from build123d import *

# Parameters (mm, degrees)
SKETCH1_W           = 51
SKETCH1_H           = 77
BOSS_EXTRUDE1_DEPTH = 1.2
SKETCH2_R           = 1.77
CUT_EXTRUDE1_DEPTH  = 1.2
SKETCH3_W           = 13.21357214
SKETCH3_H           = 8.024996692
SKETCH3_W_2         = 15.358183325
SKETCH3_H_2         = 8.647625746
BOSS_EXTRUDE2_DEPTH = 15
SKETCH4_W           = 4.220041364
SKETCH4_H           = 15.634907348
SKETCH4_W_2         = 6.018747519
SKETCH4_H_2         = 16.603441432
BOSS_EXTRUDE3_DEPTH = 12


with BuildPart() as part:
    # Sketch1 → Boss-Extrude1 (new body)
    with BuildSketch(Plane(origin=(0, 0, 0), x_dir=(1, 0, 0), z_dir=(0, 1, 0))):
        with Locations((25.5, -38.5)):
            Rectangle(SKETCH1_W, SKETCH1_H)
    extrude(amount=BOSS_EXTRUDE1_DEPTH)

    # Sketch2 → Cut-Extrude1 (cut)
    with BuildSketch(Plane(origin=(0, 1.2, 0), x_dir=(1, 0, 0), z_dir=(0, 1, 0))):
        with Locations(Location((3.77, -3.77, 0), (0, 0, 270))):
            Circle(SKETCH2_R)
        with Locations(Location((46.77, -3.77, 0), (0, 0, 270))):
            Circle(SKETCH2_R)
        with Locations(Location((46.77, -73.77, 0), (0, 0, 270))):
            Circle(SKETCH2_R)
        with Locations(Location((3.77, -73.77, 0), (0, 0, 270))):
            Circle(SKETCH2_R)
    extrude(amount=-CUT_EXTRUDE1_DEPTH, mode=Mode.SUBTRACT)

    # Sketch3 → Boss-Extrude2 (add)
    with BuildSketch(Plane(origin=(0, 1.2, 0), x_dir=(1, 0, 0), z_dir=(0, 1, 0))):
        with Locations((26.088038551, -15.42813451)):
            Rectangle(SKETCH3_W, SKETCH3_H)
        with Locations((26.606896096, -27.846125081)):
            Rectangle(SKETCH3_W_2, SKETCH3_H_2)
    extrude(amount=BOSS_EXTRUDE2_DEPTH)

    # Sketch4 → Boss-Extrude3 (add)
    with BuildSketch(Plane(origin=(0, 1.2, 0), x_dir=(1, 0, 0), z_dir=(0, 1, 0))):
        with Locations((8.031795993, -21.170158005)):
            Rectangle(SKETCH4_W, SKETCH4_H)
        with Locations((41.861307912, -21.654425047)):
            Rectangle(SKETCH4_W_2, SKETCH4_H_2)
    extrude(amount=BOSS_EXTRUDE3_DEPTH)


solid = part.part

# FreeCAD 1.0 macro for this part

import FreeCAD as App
import Part
import Sketcher

doc = App.newDocument("Part")
params = doc.addObject("Spreadsheet::Sheet", "Params")
for row, (alias, value) in enumerate([
    ("sketch1_width", "51 mm"),
    ("sketch1_height", "77 mm"),
    ("pad1_length", "1.2 mm"),
    ("sketch2_diameter", "3.54 mm"),
    ("pocket1_length", "1.2 mm"),
    ("pad2_length", "15 mm"),
    ("pad3_length", "12 mm"),
], start=1):
    params.set(f"A{row}", alias)
    params.set(f"B{row}", "=" + value)
    params.setAlias(f"B{row}", alias)

body = doc.addObject("PartDesign::Body", "Body")

# Sketch on XZ plane
sketch1 = body.newObject("Sketcher::SketchObject", "Sketch")
sketch1.AttachmentSupport = (doc.getObject("XZ_Plane"), [""])
sketch1.MapMode = "FlatFace"
sketch1.addGeometry(Part.LineSegment(App.Vector(0, 0, 0), App.Vector(0, 77, 0)), False)
sketch1.addGeometry(Part.LineSegment(App.Vector(0, 77, 0), App.Vector(51, 77, 0)), False)
sketch1.addGeometry(Part.LineSegment(App.Vector(51, 77, 0), App.Vector(51, 0, 0)), False)
sketch1.addGeometry(Part.LineSegment(App.Vector(51, 0, 0), App.Vector(0, 0, 0)), False)
sketch1.addConstraint(Sketcher.Constraint("Coincident", 0, 2, 1, 1))
sketch1.addConstraint(Sketcher.Constraint("Coincident", 1, 2, 2, 1))
sketch1.addConstraint(Sketcher.Constraint("Coincident", 2, 2, 3, 1))
sketch1.addConstraint(Sketcher.Constraint("Coincident", 3, 2, 0, 1))
sketch1.addConstraint(Sketcher.Constraint("Vertical", 0))
sketch1.addConstraint(Sketcher.Constraint("Horizontal", 1))
sketch1.addConstraint(Sketcher.Constraint("Vertical", 2))
sketch1.addConstraint(Sketcher.Constraint("Horizontal", 3))
sketch1.addConstraint(Sketcher.Constraint("Coincident", 3, 2, -1, 1))
sketch1.addConstraint(Sketcher.Constraint("DistanceX", 1, 1, 1, 2, 51.0))
sketch1.addConstraint(Sketcher.Constraint("DistanceY", 0, 1, 0, 2, 77.0))
sketch1.setExpression("Constraints[9]", "Params.sketch1_width")
sketch1.setExpression("Constraints[10]", "Params.sketch1_height")
pad1 = body.newObject("PartDesign::Pad", "Pad")
pad1.Profile = sketch1
pad1.setExpression("Length", "Params.pad1_length")
pad1.Reversed = True

# Sketch on XZ plane
sketch2 = body.newObject("Sketcher::SketchObject", "Sketch001")
sketch2.AttachmentSupport = (doc.getObject("XZ_Plane"), [""])
sketch2.MapMode = "FlatFace"
sketch2.AttachmentOffset = App.Placement(App.Vector(0, 0, -1.2), App.Rotation())
sketch2.addGeometry(Part.Circle(App.Vector(3.8, 3.8, 0), App.Vector(0, 0, 1), 1.8), False)
sketch2.addGeometry(Part.Circle(App.Vector(46.8, 3.8, 0), App.Vector(0, 0, 1), 1.8), False)
sketch2.addGeometry(Part.Circle(App.Vector(46.8, 73.8, 0), App.Vector(0, 0, 1), 1.8), False)
sketch2.addGeometry(Part.Circle(App.Vector(3.8, 73.8, 0), App.Vector(0, 0, 1), 1.8), False)
sketch2.addConstraint(Sketcher.Constraint("Equal", 0, 1))
sketch2.addConstraint(Sketcher.Constraint("Equal", 1, 2))
sketch2.addConstraint(Sketcher.Constraint("Equal", 2, 3))
sketch2.addConstraint(Sketcher.Constraint("Horizontal", 0, 3, 1, 3))
sketch2.addConstraint(Sketcher.Constraint("Horizontal", 2, 3, 3, 3))
sketch2.addConstraint(Sketcher.Constraint("Vertical", 1, 3, 2, 3))
sketch2.addConstraint(Sketcher.Constraint("Vertical", 0, 3, 3, 3))
sketch2.addConstraint(Sketcher.Constraint("Diameter", 0, 3.54))
sketch2.addConstraint(Sketcher.Constraint("DistanceX", 0, 3, 1, 3, 43.0))
sketch2.addConstraint(Sketcher.Constraint("DistanceY", 1, 3, 2, 3, 70.0))
sketch2.addConstraint(Sketcher.Constraint("DistanceX", -1, 1, 0, 3, 3.77))
sketch2.addConstraint(Sketcher.Constraint("DistanceY", -1, 1, 0, 3, 3.77))
sketch2.setExpression("Constraints[7]", "Params.sketch2_diameter")
pocket1 = body.newObject("PartDesign::Pocket", "Pocket")
pocket1.Profile = sketch2
pocket1.setExpression("Length", "Params.pocket1_length")
pocket1.Reversed = True

# Sketch on XZ plane
sketch3 = body.newObject("Sketcher::SketchObject", "Sketch002")
sketch3.AttachmentSupport = (doc.getObject("XZ_Plane"), [""])
sketch3.MapMode = "FlatFace"
sketch3.AttachmentOffset = App.Placement(App.Vector(0, 0, -1.2), App.Rotation())
sketch3.addGeometry(Part.LineSegment(App.Vector(19, 11, 0), App.Vector(19, 19, 0)), False)
sketch3.addGeometry(Part.LineSegment(App.Vector(19, 19, 0), App.Vector(33, 19, 0)), False)
sketch3.addGeometry(Part.LineSegment(App.Vector(33, 19, 0), App.Vector(33, 11, 0)), False)
sketch3.addGeometry(Part.LineSegment(App.Vector(33, 11, 0), App.Vector(19, 11, 0)), False)
sketch3.addGeometry(Part.LineSegment(App.Vector(19, 24, 0), App.Vector(19, 32, 0)), False)
sketch3.addGeometry(Part.LineSegment(App.Vector(19, 32, 0), App.Vector(34, 32, 0)), False)
sketch3.addGeometry(Part.LineSegment(App.Vector(34, 32, 0), App.Vector(34, 24, 0)), False)
sketch3.addGeometry(Part.LineSegment(App.Vector(34, 24, 0), App.Vector(19, 24, 0)), False)
sketch3.addConstraint(Sketcher.Constraint("Coincident", 0, 2, 1, 1))
sketch3.addConstraint(Sketcher.Constraint("Coincident", 1, 2, 2, 1))
sketch3.addConstraint(Sketcher.Constraint("Coincident", 2, 2, 3, 1))
sketch3.addConstraint(Sketcher.Constraint("Coincident", 3, 2, 0, 1))
sketch3.addConstraint(Sketcher.Constraint("Coincident", 4, 2, 5, 1))
sketch3.addConstraint(Sketcher.Constraint("Coincident", 5, 2, 6, 1))
sketch3.addConstraint(Sketcher.Constraint("Coincident", 6, 2, 7, 1))
sketch3.addConstraint(Sketcher.Constraint("Coincident", 7, 2, 4, 1))
sketch3.addConstraint(Sketcher.Constraint("Vertical", 0))
sketch3.addConstraint(Sketcher.Constraint("Horizontal", 1))
sketch3.addConstraint(Sketcher.Constraint("Vertical", 2))
sketch3.addConstraint(Sketcher.Constraint("Horizontal", 3))
sketch3.addConstraint(Sketcher.Constraint("Vertical", 4))
sketch3.addConstraint(Sketcher.Constraint("Horizontal", 5))
sketch3.addConstraint(Sketcher.Constraint("Vertical", 6))
sketch3.addConstraint(Sketcher.Constraint("Horizontal", 7))
sketch3.addConstraint(Sketcher.Constraint("DistanceY", 3, 2, 4, 2, 20.754302))
sketch3.addConstraint(Sketcher.Constraint("DistanceX", 1, 1, 1, 2, 13.213572))
sketch3.addConstraint(Sketcher.Constraint("DistanceX", 5, 1, 5, 2, 15.358183))
sketch3.addConstraint(Sketcher.Constraint("DistanceY", 0, 1, 0, 2, 8.024997))
sketch3.addConstraint(Sketcher.Constraint("DistanceY", 4, 1, 4, 2, 8.647626))
sketch3.addConstraint(Sketcher.Constraint("DistanceX", 4, 2, 0, 2, 0.553448))
sketch3.addConstraint(Sketcher.Constraint("DistanceX", -1, 1, 0, 2, 19.481252))
sketch3.addConstraint(Sketcher.Constraint("DistanceY", -1, 1, 0, 2, 19.440633))
pad2 = body.newObject("PartDesign::Pad", "Pad001")
pad2.Profile = sketch3
pad2.setExpression("Length", "Params.pad2_length")
pad2.Reversed = True

# Sketch on XZ plane
sketch4 = body.newObject("Sketcher::SketchObject", "Sketch003")
sketch4.AttachmentSupport = (doc.getObject("XZ_Plane"), [""])
sketch4.MapMode = "FlatFace"
sketch4.AttachmentOffset = App.Placement(App.Vector(0, 0, -1.2), App.Rotation())
sketch4.addGeometry(Part.LineSegment(App.Vector(5.9, 13.4, 0), App.Vector(5.9, 29, 0)), False)
sketch4.addGeometry(Part.LineSegment(App.Vector(5.9, 29, 0), App.Vector(10.1, 29, 0)), False)
sketch4.addGeometry(Part.LineSegment(App.Vector(10.1, 29, 0), App.Vector(10.1, 13.4, 0)), False)
sketch4.addGeometry(Part.LineSegment(App.Vector(10.1, 13.4, 0), App.Vector(5.9, 13.4, 0)), False)
sketch4.addGeometry(Part.LineSegment(App.Vector(38.9, 13.4, 0), App.Vector(38.9, 30, 0)), False)
sketch4.addGeometry(Part.LineSegment(App.Vector(38.9, 30, 0), App.Vector(44.9, 30, 0)), False)
sketch4.addGeometry(Part.LineSegment(App.Vector(44.9, 30, 0), App.Vector(44.9, 13.4, 0)), False)
sketch4.addGeometry(Part.LineSegment(App.Vector(44.9, 13.4, 0), App.Vector(38.9, 13.4, 0)), False)
sketch4.addConstraint(Sketcher.Constraint("Coincident", 0, 2, 1, 1))
sketch4.addConstraint(Sketcher.Constraint("Coincident", 1, 2, 2, 1))
sketch4.addConstraint(Sketcher.Constraint("Coincident", 2, 2, 3, 1))
sketch4.addConstraint(Sketcher.Constraint("Coincident", 3, 2, 0, 1))
sketch4.addConstraint(Sketcher.Constraint("Coincident", 4, 2, 5, 1))
sketch4.addConstraint(Sketcher.Constraint("Coincident", 5, 2, 6, 1))
sketch4.addConstraint(Sketcher.Constraint("Coincident", 6, 2, 7, 1))
sketch4.addConstraint(Sketcher.Constraint("Coincident", 7, 2, 4, 1))
sketch4.addConstraint(Sketcher.Constraint("Vertical", 0))
sketch4.addConstraint(Sketcher.Constraint("Horizontal", 1))
sketch4.addConstraint(Sketcher.Constraint("Vertical", 2))
sketch4.addConstraint(Sketcher.Constraint("Horizontal", 3))
sketch4.addConstraint(Sketcher.Constraint("Vertical", 4))
sketch4.addConstraint(Sketcher.Constraint("Horizontal", 5))
sketch4.addConstraint(Sketcher.Constraint("Vertical", 6))
sketch4.addConstraint(Sketcher.Constraint("Horizontal", 7))
sketch4.addConstraint(Sketcher.Constraint("Horizontal", 3, 2, 6, 2))
sketch4.addConstraint(Sketcher.Constraint("DistanceX", 1, 1, 1, 2, 4.220041))
sketch4.addConstraint(Sketcher.Constraint("DistanceY", 4, 1, 4, 2, 16.603441))
sketch4.addConstraint(Sketcher.Constraint("DistanceX", 5, 1, 5, 2, 6.018748))
sketch4.addConstraint(Sketcher.Constraint("DistanceY", 0, 1, 0, 2, 15.634907))
sketch4.addConstraint(Sketcher.Constraint("DistanceY", -1, 1, 0, 2, 28.987612))
sketch4.addConstraint(Sketcher.Constraint("DistanceX", -1, 1, 5, 2, 44.870682))
sketch4.addConstraint(Sketcher.Constraint("DistanceX", 0, 2, 4, 2, 32.930159))
pad3 = body.newObject("PartDesign::Pad", "Pad002")
pad3.Profile = sketch4
pad3.setExpression("Length", "Params.pad3_length")
pad3.Reversed = True

doc.recompute()
